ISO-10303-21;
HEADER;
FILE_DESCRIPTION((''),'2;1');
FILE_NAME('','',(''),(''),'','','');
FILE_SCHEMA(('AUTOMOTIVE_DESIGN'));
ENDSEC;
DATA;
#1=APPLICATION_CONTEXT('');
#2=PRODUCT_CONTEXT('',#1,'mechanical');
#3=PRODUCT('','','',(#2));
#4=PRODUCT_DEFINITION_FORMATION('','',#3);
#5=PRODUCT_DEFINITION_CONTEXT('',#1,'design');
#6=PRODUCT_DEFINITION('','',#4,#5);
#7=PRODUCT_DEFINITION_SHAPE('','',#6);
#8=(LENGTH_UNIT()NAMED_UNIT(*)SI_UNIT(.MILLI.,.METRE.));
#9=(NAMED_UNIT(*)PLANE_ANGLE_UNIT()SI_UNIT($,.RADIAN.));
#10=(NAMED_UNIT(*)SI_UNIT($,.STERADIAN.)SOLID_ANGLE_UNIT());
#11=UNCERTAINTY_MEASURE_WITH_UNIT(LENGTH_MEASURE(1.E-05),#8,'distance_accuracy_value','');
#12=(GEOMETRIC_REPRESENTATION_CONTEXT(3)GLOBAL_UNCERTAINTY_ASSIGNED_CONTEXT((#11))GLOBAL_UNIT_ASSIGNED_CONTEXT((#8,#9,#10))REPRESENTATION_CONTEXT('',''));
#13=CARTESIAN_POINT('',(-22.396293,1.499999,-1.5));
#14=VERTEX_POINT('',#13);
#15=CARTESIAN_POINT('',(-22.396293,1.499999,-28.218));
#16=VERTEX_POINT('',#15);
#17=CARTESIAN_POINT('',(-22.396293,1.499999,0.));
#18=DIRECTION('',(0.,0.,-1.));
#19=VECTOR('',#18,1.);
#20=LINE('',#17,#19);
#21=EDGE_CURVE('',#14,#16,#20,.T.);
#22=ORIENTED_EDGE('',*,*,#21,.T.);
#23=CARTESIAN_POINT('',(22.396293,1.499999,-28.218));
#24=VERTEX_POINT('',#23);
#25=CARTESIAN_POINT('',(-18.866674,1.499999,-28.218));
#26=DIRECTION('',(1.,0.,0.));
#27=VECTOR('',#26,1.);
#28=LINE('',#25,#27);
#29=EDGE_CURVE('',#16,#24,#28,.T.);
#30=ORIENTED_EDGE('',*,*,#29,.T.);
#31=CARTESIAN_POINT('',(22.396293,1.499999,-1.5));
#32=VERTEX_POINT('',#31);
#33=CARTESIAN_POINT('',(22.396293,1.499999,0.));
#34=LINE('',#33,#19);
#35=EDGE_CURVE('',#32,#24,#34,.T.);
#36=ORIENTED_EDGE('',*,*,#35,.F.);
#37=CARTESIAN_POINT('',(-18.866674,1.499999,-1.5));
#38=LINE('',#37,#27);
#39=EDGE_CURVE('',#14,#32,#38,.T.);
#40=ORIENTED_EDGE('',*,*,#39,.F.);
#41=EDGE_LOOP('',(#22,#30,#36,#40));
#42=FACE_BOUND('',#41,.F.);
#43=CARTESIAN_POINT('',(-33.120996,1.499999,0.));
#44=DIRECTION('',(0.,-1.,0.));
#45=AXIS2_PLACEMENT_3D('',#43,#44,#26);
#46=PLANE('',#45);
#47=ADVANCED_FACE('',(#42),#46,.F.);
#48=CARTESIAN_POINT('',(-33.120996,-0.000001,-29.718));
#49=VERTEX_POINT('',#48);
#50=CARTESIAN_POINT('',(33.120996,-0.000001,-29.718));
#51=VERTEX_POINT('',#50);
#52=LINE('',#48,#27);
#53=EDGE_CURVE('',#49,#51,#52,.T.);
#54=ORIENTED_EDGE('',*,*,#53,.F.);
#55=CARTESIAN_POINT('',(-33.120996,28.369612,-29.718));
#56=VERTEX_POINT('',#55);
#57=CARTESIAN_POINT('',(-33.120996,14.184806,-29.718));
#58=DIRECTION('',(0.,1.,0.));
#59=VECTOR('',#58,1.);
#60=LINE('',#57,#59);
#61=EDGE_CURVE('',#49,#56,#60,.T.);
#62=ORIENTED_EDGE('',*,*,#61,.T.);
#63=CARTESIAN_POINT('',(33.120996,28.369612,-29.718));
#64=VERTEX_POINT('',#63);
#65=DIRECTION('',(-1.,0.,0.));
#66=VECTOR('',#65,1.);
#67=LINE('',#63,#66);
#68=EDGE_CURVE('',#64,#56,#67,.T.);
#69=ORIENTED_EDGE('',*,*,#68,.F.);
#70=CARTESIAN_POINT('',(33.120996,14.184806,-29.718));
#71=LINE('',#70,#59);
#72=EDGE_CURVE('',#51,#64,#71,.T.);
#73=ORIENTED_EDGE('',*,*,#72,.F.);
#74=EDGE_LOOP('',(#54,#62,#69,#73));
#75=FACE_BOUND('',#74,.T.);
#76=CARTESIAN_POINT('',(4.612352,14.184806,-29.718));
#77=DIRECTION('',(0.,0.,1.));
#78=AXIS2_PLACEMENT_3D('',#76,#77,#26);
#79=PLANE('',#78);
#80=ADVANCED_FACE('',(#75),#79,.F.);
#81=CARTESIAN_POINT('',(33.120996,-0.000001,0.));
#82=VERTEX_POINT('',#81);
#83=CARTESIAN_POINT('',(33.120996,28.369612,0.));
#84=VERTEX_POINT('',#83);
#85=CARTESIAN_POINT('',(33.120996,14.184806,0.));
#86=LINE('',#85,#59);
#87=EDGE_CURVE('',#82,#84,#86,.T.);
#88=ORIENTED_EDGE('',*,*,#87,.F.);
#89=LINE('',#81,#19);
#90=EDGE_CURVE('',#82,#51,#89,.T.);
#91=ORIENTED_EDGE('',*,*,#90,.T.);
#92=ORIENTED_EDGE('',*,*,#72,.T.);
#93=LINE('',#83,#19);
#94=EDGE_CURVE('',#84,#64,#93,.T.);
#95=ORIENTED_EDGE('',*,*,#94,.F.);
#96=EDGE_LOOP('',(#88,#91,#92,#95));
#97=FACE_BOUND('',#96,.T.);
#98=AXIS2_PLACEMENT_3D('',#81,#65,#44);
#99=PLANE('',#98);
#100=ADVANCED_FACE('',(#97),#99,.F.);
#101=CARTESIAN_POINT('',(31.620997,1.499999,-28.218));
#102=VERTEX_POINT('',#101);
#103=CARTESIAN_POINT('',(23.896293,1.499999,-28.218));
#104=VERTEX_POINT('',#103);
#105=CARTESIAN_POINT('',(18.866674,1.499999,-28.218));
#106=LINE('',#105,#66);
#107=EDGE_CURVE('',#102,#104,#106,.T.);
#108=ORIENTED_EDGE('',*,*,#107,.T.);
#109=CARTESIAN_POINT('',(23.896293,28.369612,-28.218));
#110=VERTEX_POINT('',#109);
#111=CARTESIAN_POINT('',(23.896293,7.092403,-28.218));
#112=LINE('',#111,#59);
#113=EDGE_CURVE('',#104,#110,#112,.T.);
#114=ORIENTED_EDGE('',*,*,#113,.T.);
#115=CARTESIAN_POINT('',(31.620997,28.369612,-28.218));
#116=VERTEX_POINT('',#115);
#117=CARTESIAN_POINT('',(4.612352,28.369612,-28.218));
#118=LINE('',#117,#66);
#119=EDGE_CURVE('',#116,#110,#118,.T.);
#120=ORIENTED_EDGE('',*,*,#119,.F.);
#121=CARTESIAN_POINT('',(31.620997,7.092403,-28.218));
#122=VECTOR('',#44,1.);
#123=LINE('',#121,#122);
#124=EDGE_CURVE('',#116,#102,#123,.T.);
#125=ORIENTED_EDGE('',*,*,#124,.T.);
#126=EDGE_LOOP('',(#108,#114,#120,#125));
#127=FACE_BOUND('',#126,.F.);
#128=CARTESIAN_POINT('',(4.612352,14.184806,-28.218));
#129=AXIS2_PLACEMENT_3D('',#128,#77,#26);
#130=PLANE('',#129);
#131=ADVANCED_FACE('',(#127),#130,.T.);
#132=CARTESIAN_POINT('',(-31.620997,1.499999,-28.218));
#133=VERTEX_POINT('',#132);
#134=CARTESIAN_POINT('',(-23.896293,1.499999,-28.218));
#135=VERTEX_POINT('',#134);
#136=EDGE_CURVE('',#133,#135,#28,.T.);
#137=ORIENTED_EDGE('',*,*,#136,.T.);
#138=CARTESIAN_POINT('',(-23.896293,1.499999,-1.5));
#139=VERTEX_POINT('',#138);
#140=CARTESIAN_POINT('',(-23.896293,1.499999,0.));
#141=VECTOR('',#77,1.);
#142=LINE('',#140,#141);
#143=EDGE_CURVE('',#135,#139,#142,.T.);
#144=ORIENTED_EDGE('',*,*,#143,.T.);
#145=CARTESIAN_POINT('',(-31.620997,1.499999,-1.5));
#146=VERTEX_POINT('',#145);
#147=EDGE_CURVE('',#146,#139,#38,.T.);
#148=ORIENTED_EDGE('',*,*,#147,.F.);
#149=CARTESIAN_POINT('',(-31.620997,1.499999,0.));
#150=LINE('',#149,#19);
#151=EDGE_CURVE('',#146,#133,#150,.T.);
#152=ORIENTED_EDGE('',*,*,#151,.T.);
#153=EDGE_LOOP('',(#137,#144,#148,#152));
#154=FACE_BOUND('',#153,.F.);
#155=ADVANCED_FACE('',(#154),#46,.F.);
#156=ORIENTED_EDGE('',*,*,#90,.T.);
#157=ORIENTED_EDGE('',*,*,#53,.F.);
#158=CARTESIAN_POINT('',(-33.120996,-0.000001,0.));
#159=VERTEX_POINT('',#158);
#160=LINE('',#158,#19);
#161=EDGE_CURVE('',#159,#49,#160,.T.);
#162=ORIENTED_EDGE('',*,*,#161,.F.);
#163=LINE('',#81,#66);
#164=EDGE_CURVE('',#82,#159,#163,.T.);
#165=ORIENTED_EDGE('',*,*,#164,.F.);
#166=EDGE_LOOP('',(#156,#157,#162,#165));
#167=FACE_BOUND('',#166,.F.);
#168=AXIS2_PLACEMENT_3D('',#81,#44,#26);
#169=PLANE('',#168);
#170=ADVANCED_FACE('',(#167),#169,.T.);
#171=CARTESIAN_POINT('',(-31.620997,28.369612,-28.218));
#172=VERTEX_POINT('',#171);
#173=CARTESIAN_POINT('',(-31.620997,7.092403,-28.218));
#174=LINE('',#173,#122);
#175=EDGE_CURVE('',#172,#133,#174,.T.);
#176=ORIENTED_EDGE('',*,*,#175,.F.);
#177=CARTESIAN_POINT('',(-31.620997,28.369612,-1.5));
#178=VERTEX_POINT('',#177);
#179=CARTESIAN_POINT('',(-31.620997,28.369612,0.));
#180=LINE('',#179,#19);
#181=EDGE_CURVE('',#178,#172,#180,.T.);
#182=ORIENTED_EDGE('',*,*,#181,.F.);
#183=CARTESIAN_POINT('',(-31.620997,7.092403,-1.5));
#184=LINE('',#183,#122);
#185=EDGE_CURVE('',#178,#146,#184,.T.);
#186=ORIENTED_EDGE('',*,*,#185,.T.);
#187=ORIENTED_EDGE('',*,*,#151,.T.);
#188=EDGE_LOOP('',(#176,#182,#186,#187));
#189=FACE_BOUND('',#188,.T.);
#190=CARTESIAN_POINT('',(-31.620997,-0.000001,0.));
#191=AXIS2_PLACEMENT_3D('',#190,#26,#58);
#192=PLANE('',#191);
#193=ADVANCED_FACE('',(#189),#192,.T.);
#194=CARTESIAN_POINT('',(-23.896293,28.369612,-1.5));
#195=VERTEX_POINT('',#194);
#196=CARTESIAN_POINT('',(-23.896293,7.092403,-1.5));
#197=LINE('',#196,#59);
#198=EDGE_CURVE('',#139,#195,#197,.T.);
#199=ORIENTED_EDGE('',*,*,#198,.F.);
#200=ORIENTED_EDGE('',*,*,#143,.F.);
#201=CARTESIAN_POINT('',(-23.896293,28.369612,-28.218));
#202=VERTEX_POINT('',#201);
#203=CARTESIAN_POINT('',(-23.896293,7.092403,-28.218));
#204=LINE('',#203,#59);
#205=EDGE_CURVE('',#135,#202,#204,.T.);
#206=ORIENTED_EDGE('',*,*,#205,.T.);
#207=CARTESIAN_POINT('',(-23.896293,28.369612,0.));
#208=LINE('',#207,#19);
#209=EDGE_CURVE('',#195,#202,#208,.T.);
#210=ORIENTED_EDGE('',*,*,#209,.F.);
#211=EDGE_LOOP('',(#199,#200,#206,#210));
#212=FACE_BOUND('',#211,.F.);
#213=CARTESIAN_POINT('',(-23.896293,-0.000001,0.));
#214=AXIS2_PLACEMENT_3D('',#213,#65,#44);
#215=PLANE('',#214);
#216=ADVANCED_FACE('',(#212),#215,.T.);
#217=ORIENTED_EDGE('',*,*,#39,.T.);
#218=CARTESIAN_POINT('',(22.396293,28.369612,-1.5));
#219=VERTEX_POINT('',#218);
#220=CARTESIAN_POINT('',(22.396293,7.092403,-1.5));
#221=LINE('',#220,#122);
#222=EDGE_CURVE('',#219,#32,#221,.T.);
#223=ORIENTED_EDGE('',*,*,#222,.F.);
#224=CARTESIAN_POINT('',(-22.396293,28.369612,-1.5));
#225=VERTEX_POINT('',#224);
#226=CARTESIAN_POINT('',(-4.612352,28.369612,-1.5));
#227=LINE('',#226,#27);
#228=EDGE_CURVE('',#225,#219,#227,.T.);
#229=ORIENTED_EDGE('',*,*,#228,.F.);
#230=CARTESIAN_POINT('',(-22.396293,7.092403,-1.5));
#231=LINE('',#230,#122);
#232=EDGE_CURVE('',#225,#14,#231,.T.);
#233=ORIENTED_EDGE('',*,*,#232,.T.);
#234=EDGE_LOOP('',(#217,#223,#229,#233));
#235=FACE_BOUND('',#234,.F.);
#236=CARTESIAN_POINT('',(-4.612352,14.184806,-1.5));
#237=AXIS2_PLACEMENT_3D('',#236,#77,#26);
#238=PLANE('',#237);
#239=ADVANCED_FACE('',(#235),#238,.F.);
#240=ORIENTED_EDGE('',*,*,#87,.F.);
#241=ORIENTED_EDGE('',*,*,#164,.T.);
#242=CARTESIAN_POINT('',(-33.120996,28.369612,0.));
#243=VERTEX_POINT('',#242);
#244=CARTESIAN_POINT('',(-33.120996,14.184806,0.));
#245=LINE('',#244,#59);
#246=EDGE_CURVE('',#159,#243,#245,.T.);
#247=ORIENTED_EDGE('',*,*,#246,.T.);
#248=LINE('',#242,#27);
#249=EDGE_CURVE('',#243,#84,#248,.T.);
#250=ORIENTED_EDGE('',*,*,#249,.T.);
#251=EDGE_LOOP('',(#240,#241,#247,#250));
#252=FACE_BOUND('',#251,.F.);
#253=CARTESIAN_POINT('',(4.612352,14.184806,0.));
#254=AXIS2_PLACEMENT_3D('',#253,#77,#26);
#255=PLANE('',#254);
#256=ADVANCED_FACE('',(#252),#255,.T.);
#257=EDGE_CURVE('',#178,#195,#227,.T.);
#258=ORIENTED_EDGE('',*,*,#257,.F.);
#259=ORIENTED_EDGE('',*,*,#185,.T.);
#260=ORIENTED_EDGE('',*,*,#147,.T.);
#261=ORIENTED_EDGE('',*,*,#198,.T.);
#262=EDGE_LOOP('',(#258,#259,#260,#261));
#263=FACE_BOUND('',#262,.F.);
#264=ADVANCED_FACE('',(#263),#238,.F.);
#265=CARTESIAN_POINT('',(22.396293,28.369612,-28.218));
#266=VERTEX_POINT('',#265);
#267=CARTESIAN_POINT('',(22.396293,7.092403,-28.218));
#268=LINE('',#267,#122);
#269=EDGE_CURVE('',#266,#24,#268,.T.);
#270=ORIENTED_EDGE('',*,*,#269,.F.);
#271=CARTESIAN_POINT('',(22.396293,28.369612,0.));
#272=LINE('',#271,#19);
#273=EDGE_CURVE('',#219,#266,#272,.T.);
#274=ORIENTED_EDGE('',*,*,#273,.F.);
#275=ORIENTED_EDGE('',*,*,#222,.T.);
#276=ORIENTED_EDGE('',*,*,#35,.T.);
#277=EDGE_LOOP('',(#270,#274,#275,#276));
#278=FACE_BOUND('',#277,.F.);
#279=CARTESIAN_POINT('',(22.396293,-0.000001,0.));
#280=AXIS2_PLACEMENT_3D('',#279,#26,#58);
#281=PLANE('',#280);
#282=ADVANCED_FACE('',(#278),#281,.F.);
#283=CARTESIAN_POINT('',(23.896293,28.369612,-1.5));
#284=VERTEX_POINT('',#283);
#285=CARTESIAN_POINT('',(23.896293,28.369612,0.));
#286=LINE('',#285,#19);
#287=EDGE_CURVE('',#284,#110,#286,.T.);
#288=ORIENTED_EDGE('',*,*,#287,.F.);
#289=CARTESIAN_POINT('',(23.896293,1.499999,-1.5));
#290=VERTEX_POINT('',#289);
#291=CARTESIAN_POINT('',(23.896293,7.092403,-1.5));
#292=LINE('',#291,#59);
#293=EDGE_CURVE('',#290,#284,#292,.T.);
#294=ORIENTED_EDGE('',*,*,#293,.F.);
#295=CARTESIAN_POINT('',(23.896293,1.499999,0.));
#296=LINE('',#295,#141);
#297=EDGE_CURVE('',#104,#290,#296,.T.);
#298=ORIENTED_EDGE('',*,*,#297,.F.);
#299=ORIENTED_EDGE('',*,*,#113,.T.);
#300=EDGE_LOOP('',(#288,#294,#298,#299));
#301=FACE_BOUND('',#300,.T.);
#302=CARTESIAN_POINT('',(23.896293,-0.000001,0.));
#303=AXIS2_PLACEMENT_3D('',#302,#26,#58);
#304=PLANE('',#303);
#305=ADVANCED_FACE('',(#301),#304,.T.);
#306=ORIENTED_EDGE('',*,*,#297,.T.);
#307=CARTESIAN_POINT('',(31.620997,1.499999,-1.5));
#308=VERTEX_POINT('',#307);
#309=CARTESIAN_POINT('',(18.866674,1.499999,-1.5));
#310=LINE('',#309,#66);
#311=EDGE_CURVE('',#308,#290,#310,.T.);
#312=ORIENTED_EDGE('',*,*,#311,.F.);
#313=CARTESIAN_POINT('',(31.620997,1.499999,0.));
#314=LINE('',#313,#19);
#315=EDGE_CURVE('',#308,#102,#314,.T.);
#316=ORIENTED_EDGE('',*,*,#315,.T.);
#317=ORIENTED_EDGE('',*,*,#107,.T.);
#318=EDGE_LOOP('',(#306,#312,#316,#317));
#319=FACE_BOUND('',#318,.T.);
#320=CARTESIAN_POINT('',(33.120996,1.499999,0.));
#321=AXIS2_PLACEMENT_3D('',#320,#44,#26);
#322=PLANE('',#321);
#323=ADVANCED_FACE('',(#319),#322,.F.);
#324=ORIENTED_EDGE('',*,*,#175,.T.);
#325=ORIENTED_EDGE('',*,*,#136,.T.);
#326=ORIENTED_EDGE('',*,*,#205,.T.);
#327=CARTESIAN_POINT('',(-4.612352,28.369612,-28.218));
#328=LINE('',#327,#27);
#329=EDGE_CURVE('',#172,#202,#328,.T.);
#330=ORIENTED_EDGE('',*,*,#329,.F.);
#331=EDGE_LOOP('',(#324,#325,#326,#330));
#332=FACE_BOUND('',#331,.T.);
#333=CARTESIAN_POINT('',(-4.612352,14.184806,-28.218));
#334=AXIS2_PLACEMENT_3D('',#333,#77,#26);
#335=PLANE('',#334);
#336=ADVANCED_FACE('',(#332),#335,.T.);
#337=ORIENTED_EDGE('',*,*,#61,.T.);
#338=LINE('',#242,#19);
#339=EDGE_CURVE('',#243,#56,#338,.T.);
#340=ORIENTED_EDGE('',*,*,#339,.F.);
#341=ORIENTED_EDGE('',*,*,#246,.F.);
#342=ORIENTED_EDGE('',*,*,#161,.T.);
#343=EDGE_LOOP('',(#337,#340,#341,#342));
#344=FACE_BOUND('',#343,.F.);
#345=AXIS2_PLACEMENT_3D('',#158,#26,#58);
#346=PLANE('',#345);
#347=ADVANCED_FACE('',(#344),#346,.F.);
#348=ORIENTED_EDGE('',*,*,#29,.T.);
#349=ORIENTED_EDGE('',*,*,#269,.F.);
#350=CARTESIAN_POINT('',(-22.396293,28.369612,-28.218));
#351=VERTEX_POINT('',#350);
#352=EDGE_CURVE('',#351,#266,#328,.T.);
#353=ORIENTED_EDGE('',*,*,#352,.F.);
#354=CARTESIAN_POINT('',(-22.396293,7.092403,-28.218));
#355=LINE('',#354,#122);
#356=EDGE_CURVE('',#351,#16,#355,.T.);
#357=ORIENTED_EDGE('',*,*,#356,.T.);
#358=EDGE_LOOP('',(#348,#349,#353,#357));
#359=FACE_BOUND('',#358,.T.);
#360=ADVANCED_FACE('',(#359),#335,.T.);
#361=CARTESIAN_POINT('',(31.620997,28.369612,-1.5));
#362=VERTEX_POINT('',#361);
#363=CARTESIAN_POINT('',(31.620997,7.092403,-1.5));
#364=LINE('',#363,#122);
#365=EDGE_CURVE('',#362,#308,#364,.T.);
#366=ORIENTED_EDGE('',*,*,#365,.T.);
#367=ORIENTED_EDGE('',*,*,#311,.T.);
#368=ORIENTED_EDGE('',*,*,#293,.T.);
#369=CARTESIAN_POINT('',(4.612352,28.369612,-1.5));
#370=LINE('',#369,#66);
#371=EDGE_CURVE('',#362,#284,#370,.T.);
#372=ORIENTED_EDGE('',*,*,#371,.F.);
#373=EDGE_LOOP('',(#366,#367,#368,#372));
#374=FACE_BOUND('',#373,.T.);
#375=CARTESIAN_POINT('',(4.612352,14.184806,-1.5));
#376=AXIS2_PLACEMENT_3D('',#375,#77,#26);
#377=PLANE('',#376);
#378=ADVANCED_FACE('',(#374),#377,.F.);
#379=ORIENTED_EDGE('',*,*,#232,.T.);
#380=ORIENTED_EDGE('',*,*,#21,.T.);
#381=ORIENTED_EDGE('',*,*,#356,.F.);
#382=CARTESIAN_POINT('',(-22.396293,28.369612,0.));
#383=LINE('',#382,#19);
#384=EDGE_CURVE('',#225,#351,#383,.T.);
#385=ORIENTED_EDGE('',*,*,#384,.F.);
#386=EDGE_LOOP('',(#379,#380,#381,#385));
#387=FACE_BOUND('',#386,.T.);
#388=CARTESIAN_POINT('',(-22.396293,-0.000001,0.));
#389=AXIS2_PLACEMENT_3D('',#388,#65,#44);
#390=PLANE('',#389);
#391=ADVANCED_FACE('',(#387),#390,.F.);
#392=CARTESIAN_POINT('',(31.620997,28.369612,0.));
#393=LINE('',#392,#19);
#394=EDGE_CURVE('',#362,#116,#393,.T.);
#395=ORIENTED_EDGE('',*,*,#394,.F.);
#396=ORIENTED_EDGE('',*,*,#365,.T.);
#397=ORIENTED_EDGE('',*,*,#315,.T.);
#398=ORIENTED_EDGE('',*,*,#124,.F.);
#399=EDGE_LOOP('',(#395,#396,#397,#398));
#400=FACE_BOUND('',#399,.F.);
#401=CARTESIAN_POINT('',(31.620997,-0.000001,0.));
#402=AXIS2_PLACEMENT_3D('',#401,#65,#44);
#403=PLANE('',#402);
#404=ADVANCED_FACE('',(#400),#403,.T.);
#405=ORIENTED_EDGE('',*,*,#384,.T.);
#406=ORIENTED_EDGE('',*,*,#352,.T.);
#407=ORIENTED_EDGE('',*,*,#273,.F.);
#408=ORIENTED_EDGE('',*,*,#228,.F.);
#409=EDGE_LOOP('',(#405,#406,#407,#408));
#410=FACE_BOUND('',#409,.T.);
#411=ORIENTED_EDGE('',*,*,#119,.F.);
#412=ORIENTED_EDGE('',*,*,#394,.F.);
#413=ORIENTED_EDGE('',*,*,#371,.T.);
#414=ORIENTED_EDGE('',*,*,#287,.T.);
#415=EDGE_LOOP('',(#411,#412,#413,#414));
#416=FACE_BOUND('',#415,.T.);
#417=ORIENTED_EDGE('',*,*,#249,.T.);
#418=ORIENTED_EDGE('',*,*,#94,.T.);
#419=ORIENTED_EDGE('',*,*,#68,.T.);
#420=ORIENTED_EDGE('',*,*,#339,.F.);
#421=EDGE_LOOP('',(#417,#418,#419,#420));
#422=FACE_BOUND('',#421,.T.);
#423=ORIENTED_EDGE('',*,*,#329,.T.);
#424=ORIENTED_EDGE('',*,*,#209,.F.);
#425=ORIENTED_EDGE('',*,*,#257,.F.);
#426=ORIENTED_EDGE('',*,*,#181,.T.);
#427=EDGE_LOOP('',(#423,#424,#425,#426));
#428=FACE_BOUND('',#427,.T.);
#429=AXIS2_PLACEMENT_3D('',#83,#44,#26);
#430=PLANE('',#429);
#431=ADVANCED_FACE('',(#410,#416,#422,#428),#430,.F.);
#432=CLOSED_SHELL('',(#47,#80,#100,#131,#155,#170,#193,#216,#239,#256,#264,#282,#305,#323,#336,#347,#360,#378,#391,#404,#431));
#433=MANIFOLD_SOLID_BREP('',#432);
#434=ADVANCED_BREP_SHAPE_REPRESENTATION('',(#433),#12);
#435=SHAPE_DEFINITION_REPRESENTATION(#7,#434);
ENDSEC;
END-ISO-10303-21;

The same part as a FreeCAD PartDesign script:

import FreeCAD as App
import Part
import Sketcher
from FreeCAD import Vector
Q = App.Units.Quantity


def faces_at(feature, points):
    """Names of the faces that lie closest to the given points."""
    faces = feature.Shape.Faces
    near = lambda p: min(range(len(faces)), key=lambda i: faces[i].distToShape(Part.Vertex(*p))[0])
    return sorted({f"Face{near(p) + 1}" for p in points})

doc = App.newDocument("Part")
body = doc.addObject("PartDesign::Body", "Body")

# Sketch on XY plane
sketch1 = body.newObject("Sketcher::SketchObject", "Sketch")
sketch1.AttachmentSupport = (doc.getObject("XY_Plane"), [""])
sketch1.MapMode = "FlatFace"
sketch1.addGeometry([
    Part.LineSegment(Vector(-33.120996, 28.369612, 0), Vector(-33.120996, 0, 0)),
    Part.LineSegment(Vector(-33.120996, 0, 0), Vector(23.896293, 0, 0)),
    Part.LineSegment(Vector(23.896293, 0, 0), Vector(23.896293, 28.369612, 0)),
    Part.LineSegment(Vector(23.896293, 28.369612, 0), Vector(-33.120996, 28.369612, 0)),
], False)
sketch1.addConstraint([
    Sketcher.Constraint("Coincident", 0, 2, 1, 1),
    Sketcher.Constraint("Coincident", 1, 2, 2, 1),
    Sketcher.Constraint("Coincident", 2, 2, 3, 1),
    Sketcher.Constraint("Coincident", 3, 2, 0, 1),
    Sketcher.Constraint("Vertical", 0),
    Sketcher.Constraint("Horizontal", 1),
    Sketcher.Constraint("Vertical", 2),
    Sketcher.Constraint("Horizontal", 3),
    Sketcher.Constraint("PointOnObject", 0, 2, -1),
    Sketcher.Constraint("DistanceX", 1, 1, 1, 2, Q("57.017289 mm")),
    Sketcher.Constraint("DistanceY", 0, 2, 0, 1, Q("28.369613 mm")),
    Sketcher.Constraint("DistanceX", 0, 2, -1, 1, Q("33.120996 mm")),
])
pad1 = body.newObject("PartDesign::Pad", "Pad")
pad1.Profile = sketch1
pad1.Length = 29.718
pad1.Reversed = True
doc.recompute()

thickness = body.newObject("PartDesign::Thickness", "Thickness")
thickness.Base = (pad1, faces_at(pad1, [(-4.612, 28.37, -14.859)]))
thickness.Value = 1.5
thickness.Reversed = True
thickness.Join = "Arc"
body2 = doc.addObject("PartDesign::Body", "Body001")
doc.recompute()

body2.BaseFeature = body
doc.recompute()

mirroring = doc.addObject("Part::Mirroring", "Mirroring")
mirroring.Source = body
mirroring.Base = Vector(0, 0, 0)
mirroring.Normal = Vector(1, 0, 0)
body3 = doc.addObject("PartDesign::Body", "Body002")
body3.BaseFeature = mirroring
boolean = body2.newObject("PartDesign::Boolean", "Boolean")
boolean.Type = "Fuse"
boolean.addObjects([body3])
doc.recompute()
mirroring.Visibility = False

doc.recompute()
